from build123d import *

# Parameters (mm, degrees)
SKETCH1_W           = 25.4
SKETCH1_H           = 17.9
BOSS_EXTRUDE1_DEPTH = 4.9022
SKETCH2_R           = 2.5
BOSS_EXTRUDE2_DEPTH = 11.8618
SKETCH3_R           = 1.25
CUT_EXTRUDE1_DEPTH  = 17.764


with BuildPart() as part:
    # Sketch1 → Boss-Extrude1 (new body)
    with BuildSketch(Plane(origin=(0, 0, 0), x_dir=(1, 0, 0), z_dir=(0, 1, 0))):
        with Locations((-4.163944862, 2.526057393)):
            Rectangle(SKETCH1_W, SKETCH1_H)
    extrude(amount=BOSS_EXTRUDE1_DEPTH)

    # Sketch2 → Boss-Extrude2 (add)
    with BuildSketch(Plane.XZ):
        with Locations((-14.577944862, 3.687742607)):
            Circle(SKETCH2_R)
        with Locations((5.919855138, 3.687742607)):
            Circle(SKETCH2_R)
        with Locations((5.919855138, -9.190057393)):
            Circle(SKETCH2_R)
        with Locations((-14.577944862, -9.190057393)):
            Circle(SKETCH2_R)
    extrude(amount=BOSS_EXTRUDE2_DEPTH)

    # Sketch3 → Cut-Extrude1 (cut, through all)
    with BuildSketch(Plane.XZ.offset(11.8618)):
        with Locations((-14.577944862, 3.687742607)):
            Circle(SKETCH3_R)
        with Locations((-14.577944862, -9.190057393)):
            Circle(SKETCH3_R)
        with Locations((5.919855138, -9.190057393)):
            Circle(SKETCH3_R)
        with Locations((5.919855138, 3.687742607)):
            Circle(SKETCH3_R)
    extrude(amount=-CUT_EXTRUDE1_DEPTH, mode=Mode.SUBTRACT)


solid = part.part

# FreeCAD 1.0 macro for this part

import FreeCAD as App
import Part
import Sketcher
from FreeCAD import Vector
Q = App.Units.Quantity

doc = App.newDocument("Part")
body = doc.addObject("PartDesign::Body", "Body")

sketch1 = body.newObject("Sketcher::SketchObject", "Sketch")
sketch1.AttachmentSupport = (doc.getObject("XZ_Plane"), [""])
sketch1.MapMode = "FlatFace"
sketch1.addGeometry([
    Part.LineSegment(Vector(-16.863945, -11.476057, 0), Vector(-16.863945, 6.423943, 0)),
    Part.LineSegment(Vector(-16.863945, 6.423943, 0), Vector(8.536055, 6.423943, 0)),
    Part.LineSegment(Vector(8.536055, 6.423943, 0), Vector(8.536055, -11.476057, 0)),
    Part.LineSegment(Vector(8.536055, -11.476057, 0), Vector(-16.863945, -11.476057, 0)),
], False)
sketch1.addConstraint([
    Sketcher.Constraint("Coincident", 0, 2, 1, 1),
    Sketcher.Constraint("Coincident", 1, 2, 2, 1),
    Sketcher.Constraint("Coincident", 2, 2, 3, 1),
    Sketcher.Constraint("Coincident", 3, 2, 0, 1),
    Sketcher.Constraint("Vertical", 0),
    Sketcher.Constraint("Horizontal", 1),
    Sketcher.Constraint("Vertical", 2),
    Sketcher.Constraint("Horizontal", 3),
    Sketcher.Constraint("DistanceX", 1, 1, 1, 2, Q("25.4 mm")),
    Sketcher.Constraint("DistanceY", 0, 1, 0, 2, Q("17.9 mm")),
    Sketcher.Constraint("DistanceX", 0, 2, -1, 1, Q("16.863945 mm")),
    Sketcher.Constraint("DistanceY", -1, 1, 0, 2, Q("6.423943 mm")),
])
pad1 = body.newObject("PartDesign::Pad", "Pad")
pad1.Profile = sketch1
pad1.Length = 4.9022
pad1.Reversed = True

sketch2 = body.newObject("Sketcher::SketchObject", "Sketch001")
sketch2.AttachmentSupport = (doc.getObject("XZ_Plane"), [""])
sketch2.MapMode = "FlatFace"
sketch2.addGeometry([
    Part.Circle(Vector(-14.577945, 3.687743, 0), Vector(0, 0, 1), 2.5),
    Part.Circle(Vector(5.919855, 3.687743, 0), Vector(0, 0, 1), 2.5),
    Part.Circle(Vector(5.919855, -9.190057, 0), Vector(0, 0, 1), 2.5),
    Part.Circle(Vector(-14.577945, -9.190057, 0), Vector(0, 0, 1), 2.5),
], False)
sketch2.addConstraint([
    Sketcher.Constraint("Equal", 0, 1),
    Sketcher.Constraint("Equal", 1, 2),
    Sketcher.Constraint("Equal", 2, 3),
    Sketcher.Constraint("Horizontal", 0, 3, 1, 3),
    Sketcher.Constraint("Horizontal", 2, 3, 3, 3),
    Sketcher.Constraint("Vertical", 1, 3, 2, 3),
    Sketcher.Constraint("Vertical", 0, 3, 3, 3),
    Sketcher.Constraint("Diameter", 0, Q("5 mm")),
    Sketcher.Constraint("DistanceX", 0, 3, 1, 3, Q("20.4978 mm")),
    Sketcher.Constraint("DistanceY", 2, 3, 1, 3, Q("12.8778 mm")),
    Sketcher.Constraint("DistanceX", 0, 3, -1, 1, Q("14.577945 mm")),
    Sketcher.Constraint("DistanceY", -1, 1, 0, 3, Q("3.687743 mm")),
])
pad2 = body.newObject("PartDesign::Pad", "Pad001")
pad2.Profile = sketch2
pad2.Length = 11.8618

sketch3 = body.newObject("Sketcher::SketchObject", "Sketch002")
sketch3.AttachmentSupport = (doc.getObject("XZ_Plane"), [""])
sketch3.MapMode = "FlatFace"
sketch3.AttachmentOffset = App.Placement(Vector(0, 0, 11.8618), App.Rotation())
sketch3.addGeometry([
    Part.Circle(Vector(-14.577945, 3.687743, 0), Vector(0, 0, 1), 1.25),
    Part.Circle(Vector(-14.577945, -9.190057, 0), Vector(0, 0, 1), 1.25),
    Part.Circle(Vector(5.919855, -9.190057, 0), Vector(0, 0, 1), 1.25),
    Part.Circle(Vector(5.919855, 3.687743, 0), Vector(0, 0, 1), 1.25),
], False)
sketch3.addConstraint([
    Sketcher.Constraint("Equal", 0, 1),
    Sketcher.Constraint("Equal", 1, 2),
    Sketcher.Constraint("Equal", 2, 3),
    Sketcher.Constraint("Horizontal", 1, 3, 2, 3),
    Sketcher.Constraint("Horizontal", 0, 3, 3, 3),
    Sketcher.Constraint("Vertical", 0, 3, 1, 3),
    Sketcher.Constraint("Vertical", 2, 3, 3, 3),
    Sketcher.Constraint("Diameter", 0, Q("2.5 mm")),
    Sketcher.Constraint("DistanceY", 1, 3, 0, 3, Q("12.8778 mm")),
    Sketcher.Constraint("DistanceX", 1, 3, 2, 3, Q("20.4978 mm")),
    Sketcher.Constraint("DistanceX", 0, 3, -1, 1, Q("14.577945 mm")),
    Sketcher.Constraint("DistanceY", -1, 1, 0, 3, Q("3.687743 mm")),
])
pocket1 = body.newObject("PartDesign::Pocket", "Pocket")
pocket1.Profile = sketch3
pocket1.Type = "ThroughAll"

doc.recompute()
